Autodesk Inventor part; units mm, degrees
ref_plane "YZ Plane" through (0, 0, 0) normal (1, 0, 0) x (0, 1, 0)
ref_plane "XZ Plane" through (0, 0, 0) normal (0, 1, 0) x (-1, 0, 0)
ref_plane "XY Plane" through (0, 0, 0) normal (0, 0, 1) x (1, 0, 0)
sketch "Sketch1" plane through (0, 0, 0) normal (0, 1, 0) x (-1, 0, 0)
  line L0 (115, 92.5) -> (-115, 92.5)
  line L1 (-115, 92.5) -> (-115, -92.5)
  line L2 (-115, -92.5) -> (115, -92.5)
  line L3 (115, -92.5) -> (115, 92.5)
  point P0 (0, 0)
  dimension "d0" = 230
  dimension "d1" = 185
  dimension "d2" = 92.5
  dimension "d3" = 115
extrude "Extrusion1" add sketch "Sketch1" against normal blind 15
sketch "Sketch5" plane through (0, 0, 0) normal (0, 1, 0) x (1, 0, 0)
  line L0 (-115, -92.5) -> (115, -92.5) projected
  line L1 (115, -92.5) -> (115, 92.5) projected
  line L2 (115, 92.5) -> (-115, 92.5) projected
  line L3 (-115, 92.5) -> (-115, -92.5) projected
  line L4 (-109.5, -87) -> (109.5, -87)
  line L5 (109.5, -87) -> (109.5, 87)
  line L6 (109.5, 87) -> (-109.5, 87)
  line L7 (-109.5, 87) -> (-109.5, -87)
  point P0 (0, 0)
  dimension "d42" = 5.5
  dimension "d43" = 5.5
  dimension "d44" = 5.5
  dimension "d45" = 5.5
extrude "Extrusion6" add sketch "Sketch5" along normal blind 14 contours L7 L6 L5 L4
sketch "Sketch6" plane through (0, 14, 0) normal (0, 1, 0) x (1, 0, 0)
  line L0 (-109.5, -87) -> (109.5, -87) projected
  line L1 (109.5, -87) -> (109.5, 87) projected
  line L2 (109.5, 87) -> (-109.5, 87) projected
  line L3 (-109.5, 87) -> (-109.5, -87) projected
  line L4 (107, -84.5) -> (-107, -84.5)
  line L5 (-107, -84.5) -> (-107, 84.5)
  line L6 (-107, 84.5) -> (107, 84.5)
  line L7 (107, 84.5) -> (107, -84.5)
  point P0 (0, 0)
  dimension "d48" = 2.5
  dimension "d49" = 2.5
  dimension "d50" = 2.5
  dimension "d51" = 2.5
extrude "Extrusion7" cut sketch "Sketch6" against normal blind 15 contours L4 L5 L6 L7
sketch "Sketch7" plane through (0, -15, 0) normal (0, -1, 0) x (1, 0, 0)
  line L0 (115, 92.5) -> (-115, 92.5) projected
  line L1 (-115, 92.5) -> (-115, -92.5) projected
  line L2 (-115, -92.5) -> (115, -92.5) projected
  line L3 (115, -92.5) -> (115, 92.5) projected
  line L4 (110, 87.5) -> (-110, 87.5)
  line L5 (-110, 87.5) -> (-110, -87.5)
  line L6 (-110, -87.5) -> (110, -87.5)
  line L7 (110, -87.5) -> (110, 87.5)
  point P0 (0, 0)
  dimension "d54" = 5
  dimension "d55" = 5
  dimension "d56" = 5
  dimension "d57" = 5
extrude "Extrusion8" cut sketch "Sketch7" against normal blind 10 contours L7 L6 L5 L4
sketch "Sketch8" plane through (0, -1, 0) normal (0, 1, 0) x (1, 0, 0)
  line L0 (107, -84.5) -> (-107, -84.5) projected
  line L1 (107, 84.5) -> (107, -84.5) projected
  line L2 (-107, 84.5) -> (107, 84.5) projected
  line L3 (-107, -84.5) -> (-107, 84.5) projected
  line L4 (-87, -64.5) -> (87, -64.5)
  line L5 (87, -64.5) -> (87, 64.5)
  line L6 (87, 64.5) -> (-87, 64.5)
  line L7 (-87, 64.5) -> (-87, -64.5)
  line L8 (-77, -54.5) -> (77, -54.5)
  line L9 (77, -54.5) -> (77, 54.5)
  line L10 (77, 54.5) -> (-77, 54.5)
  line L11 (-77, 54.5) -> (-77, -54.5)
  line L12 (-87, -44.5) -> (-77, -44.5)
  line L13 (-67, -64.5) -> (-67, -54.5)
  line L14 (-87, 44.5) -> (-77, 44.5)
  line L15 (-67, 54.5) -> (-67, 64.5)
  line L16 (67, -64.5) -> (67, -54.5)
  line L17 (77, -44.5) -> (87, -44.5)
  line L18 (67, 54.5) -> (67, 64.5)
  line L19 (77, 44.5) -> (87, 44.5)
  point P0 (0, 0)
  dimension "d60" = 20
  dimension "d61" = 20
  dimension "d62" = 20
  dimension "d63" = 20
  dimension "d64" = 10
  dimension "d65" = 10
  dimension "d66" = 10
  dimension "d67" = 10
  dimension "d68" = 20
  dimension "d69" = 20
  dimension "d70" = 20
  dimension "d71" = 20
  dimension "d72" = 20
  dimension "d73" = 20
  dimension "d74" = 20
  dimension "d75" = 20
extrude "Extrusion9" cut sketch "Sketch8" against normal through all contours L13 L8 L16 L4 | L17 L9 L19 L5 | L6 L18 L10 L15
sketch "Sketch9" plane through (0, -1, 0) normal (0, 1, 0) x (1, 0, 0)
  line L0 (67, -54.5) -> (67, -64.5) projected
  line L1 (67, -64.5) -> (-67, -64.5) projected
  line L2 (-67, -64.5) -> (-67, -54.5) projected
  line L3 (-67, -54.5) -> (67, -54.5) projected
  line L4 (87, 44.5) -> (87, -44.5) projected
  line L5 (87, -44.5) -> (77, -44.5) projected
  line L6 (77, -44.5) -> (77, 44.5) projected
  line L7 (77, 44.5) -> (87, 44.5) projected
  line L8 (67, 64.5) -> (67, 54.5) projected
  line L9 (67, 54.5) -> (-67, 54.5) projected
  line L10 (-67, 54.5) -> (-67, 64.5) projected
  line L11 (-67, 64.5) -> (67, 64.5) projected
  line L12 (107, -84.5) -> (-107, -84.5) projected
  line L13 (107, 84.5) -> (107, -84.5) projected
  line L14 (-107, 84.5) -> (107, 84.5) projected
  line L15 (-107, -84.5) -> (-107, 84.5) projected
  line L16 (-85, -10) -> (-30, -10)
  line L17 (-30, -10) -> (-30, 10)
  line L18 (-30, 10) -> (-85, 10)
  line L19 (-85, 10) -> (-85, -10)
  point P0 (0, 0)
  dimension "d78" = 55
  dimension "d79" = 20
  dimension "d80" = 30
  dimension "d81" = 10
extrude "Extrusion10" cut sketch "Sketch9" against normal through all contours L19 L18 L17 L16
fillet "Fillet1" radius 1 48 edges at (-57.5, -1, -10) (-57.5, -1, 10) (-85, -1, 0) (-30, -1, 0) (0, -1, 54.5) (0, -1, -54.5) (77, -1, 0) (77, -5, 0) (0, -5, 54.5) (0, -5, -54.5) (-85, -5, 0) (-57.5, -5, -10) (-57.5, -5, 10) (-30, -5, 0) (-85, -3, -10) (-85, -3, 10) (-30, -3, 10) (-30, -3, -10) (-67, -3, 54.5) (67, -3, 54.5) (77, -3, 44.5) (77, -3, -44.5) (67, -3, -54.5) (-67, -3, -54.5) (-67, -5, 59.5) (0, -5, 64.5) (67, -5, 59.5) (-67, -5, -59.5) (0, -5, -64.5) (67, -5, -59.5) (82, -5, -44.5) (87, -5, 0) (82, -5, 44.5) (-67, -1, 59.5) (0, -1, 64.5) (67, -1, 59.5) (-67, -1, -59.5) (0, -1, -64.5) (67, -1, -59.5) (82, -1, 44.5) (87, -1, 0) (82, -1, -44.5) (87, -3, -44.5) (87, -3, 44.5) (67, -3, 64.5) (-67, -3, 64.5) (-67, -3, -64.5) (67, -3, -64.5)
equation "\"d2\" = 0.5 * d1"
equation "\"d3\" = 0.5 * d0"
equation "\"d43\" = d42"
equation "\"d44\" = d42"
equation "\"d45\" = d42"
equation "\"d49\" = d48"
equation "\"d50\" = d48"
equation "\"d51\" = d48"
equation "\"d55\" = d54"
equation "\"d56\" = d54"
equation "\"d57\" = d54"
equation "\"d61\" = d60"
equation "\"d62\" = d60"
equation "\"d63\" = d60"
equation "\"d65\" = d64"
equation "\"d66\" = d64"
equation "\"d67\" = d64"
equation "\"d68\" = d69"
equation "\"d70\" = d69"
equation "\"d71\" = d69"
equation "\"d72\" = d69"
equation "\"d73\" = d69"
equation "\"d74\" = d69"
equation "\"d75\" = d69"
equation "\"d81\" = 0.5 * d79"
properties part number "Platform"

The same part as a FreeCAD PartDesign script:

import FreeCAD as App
import Part
import Sketcher

V = App.Vector
Q = App.Units.Quantity


def edges_at(feature, points):
    """Names of the edges that pass closest to the given points."""
    edges = feature.Shape.Edges
    near = lambda p: min(range(len(edges)), key=lambda i: edges[i].distToShape(Part.Vertex(*p))[0])
    return sorted({f"Edge{near(p) + 1}" for p in points})


def add_polygon(sketch, points):
    """Adds a closed chain of lines whose ends are joined by coincident constraints."""
    first, n = sketch.GeometryCount, len(points)
    for a, b in zip(points, points[1:] + points[:1]):
        sketch.addGeometry(Part.LineSegment(App.Vector(*a, 0), App.Vector(*b, 0)), False)
    for i in range(n):
        sketch.addConstraint(Sketcher.Constraint("Coincident", first + i, 2, first + (i + 1) % n, 1))

doc = App.newDocument("Part")
params = doc.addObject("Spreadsheet::Sheet", "Params")
for row, (alias, value) in enumerate([
    ("sketch1_width", "230 mm"),
    ("sketch1_height", "185 mm"),
    ("pad1_length", "15 mm"),
    ("sketch2_width", "219 mm"),
    ("sketch2_height", "174 mm"),
    ("pad2_length", "14 mm"),
    ("sketch3_width", "214 mm"),
    ("sketch3_height", "169 mm"),
    ("pocket1_length", "15 mm"),
    ("sketch4_width", "220 mm"),
    ("sketch4_height", "175 mm"),
    ("pocket2_length", "10 mm"),
    ("sketch5_width", "10 mm"),
    ("sketch5_width2", "134 mm"),
    ("sketch5_height", "89 mm"),
    ("sketch6_width", "55 mm"),
    ("sketch6_height", "20 mm"),
    ("fillet_radius", "1 mm"),
], start=1):
    params.set(f"A{row}", alias)
    params.set(f"B{row}", "=" + value)
    params.setAlias(f"B{row}", alias)

body = doc.addObject("PartDesign::Body", "Body")

sketch1 = body.newObject("Sketcher::SketchObject", "Sketch")
sketch1.AttachmentSupport = (doc.getObject("XZ_Plane"), [""])
sketch1.MapMode = "FlatFace"
add_polygon(sketch1, [(-115, -92), (-115, 92), (115, 92), (115, -92)])
sketch1.addConstraint([
    Sketcher.Constraint("Vertical", 0),
    Sketcher.Constraint("Horizontal", 1),
    Sketcher.Constraint("Vertical", 2),
    Sketcher.Constraint("Horizontal", 3),
    Sketcher.Constraint("Symmetric", 0, 2, 2, 2, -1, 1),
    Sketcher.Constraint("DistanceX", 1, 1, 1, 2, Q("230 mm")),
    Sketcher.Constraint("DistanceY", 0, 1, 0, 2, Q("185 mm")),
])
sketch1.setExpression("Constraints[9]", "Params.sketch1_width")
sketch1.setExpression("Constraints[10]", "Params.sketch1_height")
pad1 = body.newObject("PartDesign::Pad", "Pad")
pad1.Profile = sketch1
pad1.setExpression("Length", "Params.pad1_length")

sketch2 = body.newObject("Sketcher::SketchObject", "Sketch001")
sketch2.AttachmentSupport = (doc.getObject("XZ_Plane"), [""])
sketch2.MapMode = "FlatFace"
add_polygon(sketch2, [(-110, -87), (-110, 87), (110, 87), (110, -87)])
sketch2.addConstraint([
    Sketcher.Constraint("Vertical", 0),
    Sketcher.Constraint("Horizontal", 1),
    Sketcher.Constraint("Vertical", 2),
    Sketcher.Constraint("Horizontal", 3),
    Sketcher.Constraint("Symmetric", 0, 2, 2, 2, -1, 1),
    Sketcher.Constraint("DistanceX", 1, 1, 1, 2, Q("219 mm")),
    Sketcher.Constraint("DistanceY", 0, 1, 0, 2, Q("174 mm")),
])
sketch2.setExpression("Constraints[9]", "Params.sketch2_width")
sketch2.setExpression("Constraints[10]", "Params.sketch2_height")
pad2 = body.newObject("PartDesign::Pad", "Pad001")
pad2.Profile = sketch2
pad2.setExpression("Length", "Params.pad2_length")
pad2.Reversed = True

sketch3 = body.newObject("Sketcher::SketchObject", "Sketch002")
sketch3.AttachmentSupport = (doc.getObject("XZ_Plane"), [""])
sketch3.MapMode = "FlatFace"
sketch3.AttachmentOffset = App.Placement(V(0, 0, -14), App.Rotation())
add_polygon(sketch3, [(-107, 84), (107, 84), (107, -84), (-107, -84)])
sketch3.addConstraint([
    Sketcher.Constraint("Horizontal", 0),
    Sketcher.Constraint("Vertical", 1),
    Sketcher.Constraint("Horizontal", 2),
    Sketcher.Constraint("Vertical", 3),
    Sketcher.Constraint("Symmetric", 0, 2, 2, 2, -1, 1),
    Sketcher.Constraint("DistanceX", 0, 1, 0, 2, Q("214 mm")),
    Sketcher.Constraint("DistanceY", 1, 2, 1, 1, Q("169 mm")),
])
sketch3.setExpression("Constraints[9]", "Params.sketch3_width")
sketch3.setExpression("Constraints[10]", "Params.sketch3_height")
pocket1 = body.newObject("PartDesign::Pocket", "Pocket")
pocket1.Profile = sketch3
pocket1.setExpression("Length", "Params.pocket1_length")
pocket1.Reversed = True

sketch4 = body.newObject("Sketcher::SketchObject", "Sketch003")
sketch4.AttachmentSupport = (doc.getObject("XZ_Plane"), [""])
sketch4.MapMode = "FlatFace"
sketch4.AttachmentOffset = App.Placement(V(0, 0, 15), App.Rotation())
add_polygon(sketch4, [(110, -88), (110, 88), (-110, 88), (-110, -88)])
sketch4.addConstraint([
    Sketcher.Constraint("Vertical", 0),
    Sketcher.Constraint("Horizontal", 1),
    Sketcher.Constraint("Vertical", 2),
    Sketcher.Constraint("Horizontal", 3),
    Sketcher.Constraint("Symmetric", 0, 2, 2, 2, -1, 1),
    Sketcher.Constraint("DistanceX", 1, 2, 1, 1, Q("220 mm")),
    Sketcher.Constraint("DistanceY", 0, 1, 0, 2, Q("175 mm")),
])
sketch4.setExpression("Constraints[9]", "Params.sketch4_width")
sketch4.setExpression("Constraints[10]", "Params.sketch4_height")
pocket2 = body.newObject("PartDesign::Pocket", "Pocket001")
pocket2.Profile = sketch4
pocket2.setExpression("Length", "Params.pocket2_length")

sketch5 = body.newObject("Sketcher::SketchObject", "Sketch004")
sketch5.AttachmentSupport = (doc.getObject("XZ_Plane"), [""])
sketch5.MapMode = "FlatFace"
sketch5.AttachmentOffset = App.Placement(V(0, 0, 1), App.Rotation())
add_polygon(sketch5, [(-67, 54), (-67, 64), (67, 64), (67, 54)])
add_polygon(sketch5, [(77, 44), (87, 44), (87, -44), (77, -44)])
add_polygon(sketch5, [(67, -64), (-67, -64), (-67, -54), (67, -54)])
sketch5.addConstraint([
    Sketcher.Constraint("Vertical", 0),
    Sketcher.Constraint("Horizontal", 1),
    Sketcher.Constraint("Vertical", 2),
    Sketcher.Constraint("Horizontal", 3),
    Sketcher.Constraint("Horizontal", 4),
    Sketcher.Constraint("Vertical", 5),
    Sketcher.Constraint("Horizontal", 6),
    Sketcher.Constraint("Vertical", 7),
    Sketcher.Constraint("Horizontal", 8),
    Sketcher.Constraint("Vertical", 9),
    Sketcher.Constraint("Horizontal", 10),
    Sketcher.Constraint("Vertical", 11),
    Sketcher.Constraint("Symmetric", 1, 2, 8, 2, -1, 1),
    Sketcher.Constraint("Symmetric", 3, 2, 10, 2, -1, 1),
    Sketcher.Constraint("Vertical", 3, 2, 8, 2),
    Sketcher.Constraint("Equal", 6, 0),
    Sketcher.Constraint("DistanceX", 4, 1, 4, 2, Q("10 mm")),
    Sketcher.Constraint("DistanceX", 2, 2, 4, 2, Q("20 mm")),
    Sketcher.Constraint("DistanceY", 4, 2, 2, 2, Q("10 mm")),
    Sketcher.Constraint("DistanceY", 8, 2, 6, 2, Q("20 mm")),
    Sketcher.Constraint("DistanceX", 1, 1, 1, 2, Q("134 mm")),
    Sketcher.Constraint("DistanceY", 5, 2, 5, 1, Q("89 mm")),
])
sketch5.setExpression("Constraints[28]", "Params.sketch5_width")
sketch5.setExpression("Constraints[32]", "Params.sketch5_width2")
sketch5.setExpression("Constraints[33]", "Params.sketch5_height")
pocket3 = body.newObject("PartDesign::Pocket", "Pocket002")
pocket3.Profile = sketch5
pocket3.Type = "ThroughAll"
pocket3.Reversed = True

sketch6 = body.newObject("Sketcher::SketchObject", "Sketch005")
sketch6.AttachmentSupport = (doc.getObject("XZ_Plane"), [""])
sketch6.MapMode = "FlatFace"
sketch6.AttachmentOffset = App.Placement(V(0, 0, 1), App.Rotation())
add_polygon(sketch6, [(-85, -10), (-85, 10), (-30, 10), (-30, -10)])
sketch6.addConstraint([
    Sketcher.Constraint("Vertical", 0),
    Sketcher.Constraint("Horizontal", 1),
    Sketcher.Constraint("Vertical", 2),
    Sketcher.Constraint("Horizontal", 3),
    Sketcher.Constraint("DistanceX", 1, 1, 1, 2, Q("55 mm")),
    Sketcher.Constraint("DistanceY", 0, 1, 0, 2, Q("20 mm")),
    Sketcher.Constraint("DistanceY", -1, 1, 0, 2, Q("10 mm")),
    Sketcher.Constraint("DistanceX", 1, 2, -1, 1, Q("30 mm")),
])
sketch6.setExpression("Constraints[8]", "Params.sketch6_width")
sketch6.setExpression("Constraints[9]", "Params.sketch6_height")
pocket4 = body.newObject("PartDesign::Pocket", "Pocket003")
pocket4.Profile = sketch6
pocket4.Type = "ThroughAll"
pocket4.Reversed = True
doc.recompute()

fillet = body.newObject("PartDesign::Fillet", "Fillet")
fillet.Base = (pocket4, edges_at(pocket4, [
    (-57.5, -1, -10),
    (-57.5, -1, 10),
    (-85, -1, 0),
    (-30, -1, 0),
    (0, -1, 54.5),
    (0, -1, -54.5),
    (77, -1, 0),
    (77, -5, 0),
    (0, -5, 54.5),
    (0, -5, -54.5),
    (-85, -5, 0),
    (-57.5, -5, -10),
    (-57.5, -5, 10),
    (-30, -5, 0),
    (-85, -3, -10),
    (-85, -3, 10),
    (-30, -3, 10),
    (-30, -3, -10),
    (-67, -3, 54.5),
    (67, -3, 54.5),
    (77, -3, 44.5),
    (77, -3, -44.5),
    (67, -3, -54.5),
    (-67, -3, -54.5),
    (-67, -5, 59.5),
    (0, -5, 64.5),
    (67, -5, 59.5),
    (-67, -5, -59.5),
    (0, -5, -64.5),
    (67, -5, -59.5),
    (82, -5, -44.5),
    (87, -5, 0),
    (82, -5, 44.5),
    (-67, -1, 59.5),
    (0, -1, 64.5),
    (67, -1, 59.5),
    (-67, -1, -59.5),
    (0, -1, -64.5),
    (67, -1, -59.5),
    (82, -1, 44.5),
    (87, -1, 0),
    (82, -1, -44.5),
    (87, -3, -44.5),
    (87, -3, 44.5),
    (67, -3, 64.5),
    (-67, -3, 64.5),
    (-67, -3, -64.5),
    (67, -3, -64.5),
]))
fillet.setExpression("Radius", "Params.fillet_radius")

doc.recompute()
